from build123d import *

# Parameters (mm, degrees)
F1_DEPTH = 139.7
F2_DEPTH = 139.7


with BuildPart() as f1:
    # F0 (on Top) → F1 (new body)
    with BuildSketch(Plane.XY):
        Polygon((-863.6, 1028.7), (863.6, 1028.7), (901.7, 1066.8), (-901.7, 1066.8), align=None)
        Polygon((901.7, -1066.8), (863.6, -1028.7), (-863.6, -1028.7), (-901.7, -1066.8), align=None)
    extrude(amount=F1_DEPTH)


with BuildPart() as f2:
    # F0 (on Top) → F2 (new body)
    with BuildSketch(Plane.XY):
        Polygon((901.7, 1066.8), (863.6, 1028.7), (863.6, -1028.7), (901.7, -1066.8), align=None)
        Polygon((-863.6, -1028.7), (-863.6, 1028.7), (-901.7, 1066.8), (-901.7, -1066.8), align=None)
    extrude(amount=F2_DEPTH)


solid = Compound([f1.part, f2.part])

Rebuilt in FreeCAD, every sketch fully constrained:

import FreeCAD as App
import Part
import Sketcher
Q = App.Units.Quantity

doc = App.newDocument("Part")
body = doc.addObject("PartDesign::Body", "Body")
body.AllowCompound = True

# Sketch on XY plane
sketch1 = doc.addObject("Sketcher::SketchObject", "Sketch")
body.addObject(sketch1)
sketch1.AttachmentSupport = (doc.XY_Plane, [""])
sketch1.MapMode = "FlatFace"
sketch1.addGeometry(Part.LineSegment(App.Vector(-864, 1029, 0), App.Vector(864, 1029, 0)), False)
sketch1.addGeometry(Part.LineSegment(App.Vector(864, 1029, 0), App.Vector(902, 1067, 0)), False)
sketch1.addGeometry(Part.LineSegment(App.Vector(902, 1067, 0), App.Vector(-902, 1067, 0)), False)
sketch1.addGeometry(Part.LineSegment(App.Vector(-902, 1067, 0), App.Vector(-864, 1029, 0)), False)
sketch1.addGeometry(Part.LineSegment(App.Vector(902, -1067, 0), App.Vector(864, -1029, 0)), False)
sketch1.addGeometry(Part.LineSegment(App.Vector(864, -1029, 0), App.Vector(-864, -1029, 0)), False)
sketch1.addGeometry(Part.LineSegment(App.Vector(-864, -1029, 0), App.Vector(-902, -1067, 0)), False)
sketch1.addGeometry(Part.LineSegment(App.Vector(-902, -1067, 0), App.Vector(902, -1067, 0)), False)
sketch1.addConstraint(Sketcher.Constraint("Coincident", 0, 2, 1, 1))
sketch1.addConstraint(Sketcher.Constraint("Coincident", 1, 2, 2, 1))
sketch1.addConstraint(Sketcher.Constraint("Coincident", 2, 2, 3, 1))
sketch1.addConstraint(Sketcher.Constraint("Coincident", 3, 2, 0, 1))
sketch1.addConstraint(Sketcher.Constraint("Coincident", 4, 2, 5, 1))
sketch1.addConstraint(Sketcher.Constraint("Coincident", 5, 2, 6, 1))
sketch1.addConstraint(Sketcher.Constraint("Coincident", 6, 2, 7, 1))
sketch1.addConstraint(Sketcher.Constraint("Coincident", 7, 2, 4, 1))
sketch1.addConstraint(Sketcher.Constraint("Horizontal", 0))
sketch1.addConstraint(Sketcher.Constraint("Horizontal", 2))
sketch1.addConstraint(Sketcher.Constraint("Horizontal", 5))
sketch1.addConstraint(Sketcher.Constraint("Horizontal", 7))
sketch1.addConstraint(Sketcher.Constraint("Symmetric", 3, 2, 4, 2, -1, 1))
sketch1.addConstraint(Sketcher.Constraint("Symmetric", 1, 2, 6, 2, -1, 1))
sketch1.addConstraint(Sketcher.Constraint("Perpendicular", 1, 3))
sketch1.addConstraint(Sketcher.Constraint("Parallel", 3, 4))
sketch1.addConstraint(Sketcher.Constraint("Perpendicular", 4, 6))
sketch1.addConstraint(Sketcher.Constraint("Vertical", 0, 2, 4, 2))
sketch1.addConstraint(Sketcher.Constraint("Vertical", 2, 2, 6, 2))
sketch1.addConstraint(Sketcher.Constraint("DistanceX", 0, 1, 0, 2, Q("68 in")))
sketch1.addConstraint(Sketcher.Constraint("DistanceX", 2, 2, 2, 1, Q("71 in")))
sketch1.addConstraint(Sketcher.Constraint("DistanceY", -1, 1, 1, 2, Q("42 in")))
pad1 = doc.addObject("PartDesign::Pad", "Pad")
body.addObject(pad1)
pad1.Profile = sketch1
pad1.Length = Q("5.5 in")
body2 = doc.addObject("PartDesign::Body", "Body001")
body2.AllowCompound = True

# Sketch on XY plane
sketch2 = doc.addObject("Sketcher::SketchObject", "Sketch001")
body2.addObject(sketch2)
sketch2.AttachmentSupport = (doc.getObject("XY_Plane001"), [""])
sketch2.MapMode = "FlatFace"
sketch2.addGeometry(Part.LineSegment(App.Vector(902, 1067, 0), App.Vector(864, 1029, 0)), False)
sketch2.addGeometry(Part.LineSegment(App.Vector(864, 1029, 0), App.Vector(864, -1029, 0)), False)
sketch2.addGeometry(Part.LineSegment(App.Vector(864, -1029, 0), App.Vector(902, -1067, 0)), False)
sketch2.addGeometry(Part.LineSegment(App.Vector(902, -1067, 0), App.Vector(902, 1067, 0)), False)
sketch2.addGeometry(Part.LineSegment(App.Vector(-864, -1029, 0), App.Vector(-864, 1029, 0)), False)
sketch2.addGeometry(Part.LineSegment(App.Vector(-864, 1029, 0), App.Vector(-902, 1067, 0)), False)
sketch2.addGeometry(Part.LineSegment(App.Vector(-902, 1067, 0), App.Vector(-902, -1067, 0)), False)
sketch2.addGeometry(Part.LineSegment(App.Vector(-902, -1067, 0), App.Vector(-864, -1029, 0)), False)
sketch2.addConstraint(Sketcher.Constraint("Coincident", 0, 2, 1, 1))
sketch2.addConstraint(Sketcher.Constraint("Coincident", 1, 2, 2, 1))
sketch2.addConstraint(Sketcher.Constraint("Coincident", 2, 2, 3, 1))
sketch2.addConstraint(Sketcher.Constraint("Coincident", 3, 2, 0, 1))
sketch2.addConstraint(Sketcher.Constraint("Coincident", 4, 2, 5, 1))
sketch2.addConstraint(Sketcher.Constraint("Coincident", 5, 2, 6, 1))
sketch2.addConstraint(Sketcher.Constraint("Coincident", 6, 2, 7, 1))
sketch2.addConstraint(Sketcher.Constraint("Coincident", 7, 2, 4, 1))
sketch2.addConstraint(Sketcher.Constraint("Vertical", 1))
sketch2.addConstraint(Sketcher.Constraint("Vertical", 3))
sketch2.addConstraint(Sketcher.Constraint("Vertical", 4))
sketch2.addConstraint(Sketcher.Constraint("Vertical", 6))
sketch2.addConstraint(Sketcher.Constraint("Symmetric", 1, 2, 4, 2, -1, 1))
sketch2.addConstraint(Sketcher.Constraint("Symmetric", 2, 2, 5, 2, -1, 1))
sketch2.addConstraint(Sketcher.Constraint("Perpendicular", 0, 2))
sketch2.addConstraint(Sketcher.Constraint("Perpendicular", 5, 7))
sketch2.addConstraint(Sketcher.Constraint("Horizontal", 0, 2, 4, 2))
sketch2.addConstraint(Sketcher.Constraint("Horizontal", 3, 2, 5, 2))
sketch2.addConstraint(Sketcher.Constraint("Horizontal", 2, 2, 6, 2))
sketch2.addConstraint(Sketcher.Constraint("DistanceY", 1, 2, 1, 1, Q("81 in")))
sketch2.addConstraint(Sketcher.Constraint("DistanceY", 3, 1, 3, 2, Q("84 in")))
sketch2.addConstraint(Sketcher.Constraint("DistanceX", -1, 1, 0, 2, Q("34 in")))
pad2 = doc.addObject("PartDesign::Pad", "Pad001")
body2.addObject(pad2)
pad2.Profile = sketch2
pad2.Length = Q("5.5 in")

doc.recompute()
